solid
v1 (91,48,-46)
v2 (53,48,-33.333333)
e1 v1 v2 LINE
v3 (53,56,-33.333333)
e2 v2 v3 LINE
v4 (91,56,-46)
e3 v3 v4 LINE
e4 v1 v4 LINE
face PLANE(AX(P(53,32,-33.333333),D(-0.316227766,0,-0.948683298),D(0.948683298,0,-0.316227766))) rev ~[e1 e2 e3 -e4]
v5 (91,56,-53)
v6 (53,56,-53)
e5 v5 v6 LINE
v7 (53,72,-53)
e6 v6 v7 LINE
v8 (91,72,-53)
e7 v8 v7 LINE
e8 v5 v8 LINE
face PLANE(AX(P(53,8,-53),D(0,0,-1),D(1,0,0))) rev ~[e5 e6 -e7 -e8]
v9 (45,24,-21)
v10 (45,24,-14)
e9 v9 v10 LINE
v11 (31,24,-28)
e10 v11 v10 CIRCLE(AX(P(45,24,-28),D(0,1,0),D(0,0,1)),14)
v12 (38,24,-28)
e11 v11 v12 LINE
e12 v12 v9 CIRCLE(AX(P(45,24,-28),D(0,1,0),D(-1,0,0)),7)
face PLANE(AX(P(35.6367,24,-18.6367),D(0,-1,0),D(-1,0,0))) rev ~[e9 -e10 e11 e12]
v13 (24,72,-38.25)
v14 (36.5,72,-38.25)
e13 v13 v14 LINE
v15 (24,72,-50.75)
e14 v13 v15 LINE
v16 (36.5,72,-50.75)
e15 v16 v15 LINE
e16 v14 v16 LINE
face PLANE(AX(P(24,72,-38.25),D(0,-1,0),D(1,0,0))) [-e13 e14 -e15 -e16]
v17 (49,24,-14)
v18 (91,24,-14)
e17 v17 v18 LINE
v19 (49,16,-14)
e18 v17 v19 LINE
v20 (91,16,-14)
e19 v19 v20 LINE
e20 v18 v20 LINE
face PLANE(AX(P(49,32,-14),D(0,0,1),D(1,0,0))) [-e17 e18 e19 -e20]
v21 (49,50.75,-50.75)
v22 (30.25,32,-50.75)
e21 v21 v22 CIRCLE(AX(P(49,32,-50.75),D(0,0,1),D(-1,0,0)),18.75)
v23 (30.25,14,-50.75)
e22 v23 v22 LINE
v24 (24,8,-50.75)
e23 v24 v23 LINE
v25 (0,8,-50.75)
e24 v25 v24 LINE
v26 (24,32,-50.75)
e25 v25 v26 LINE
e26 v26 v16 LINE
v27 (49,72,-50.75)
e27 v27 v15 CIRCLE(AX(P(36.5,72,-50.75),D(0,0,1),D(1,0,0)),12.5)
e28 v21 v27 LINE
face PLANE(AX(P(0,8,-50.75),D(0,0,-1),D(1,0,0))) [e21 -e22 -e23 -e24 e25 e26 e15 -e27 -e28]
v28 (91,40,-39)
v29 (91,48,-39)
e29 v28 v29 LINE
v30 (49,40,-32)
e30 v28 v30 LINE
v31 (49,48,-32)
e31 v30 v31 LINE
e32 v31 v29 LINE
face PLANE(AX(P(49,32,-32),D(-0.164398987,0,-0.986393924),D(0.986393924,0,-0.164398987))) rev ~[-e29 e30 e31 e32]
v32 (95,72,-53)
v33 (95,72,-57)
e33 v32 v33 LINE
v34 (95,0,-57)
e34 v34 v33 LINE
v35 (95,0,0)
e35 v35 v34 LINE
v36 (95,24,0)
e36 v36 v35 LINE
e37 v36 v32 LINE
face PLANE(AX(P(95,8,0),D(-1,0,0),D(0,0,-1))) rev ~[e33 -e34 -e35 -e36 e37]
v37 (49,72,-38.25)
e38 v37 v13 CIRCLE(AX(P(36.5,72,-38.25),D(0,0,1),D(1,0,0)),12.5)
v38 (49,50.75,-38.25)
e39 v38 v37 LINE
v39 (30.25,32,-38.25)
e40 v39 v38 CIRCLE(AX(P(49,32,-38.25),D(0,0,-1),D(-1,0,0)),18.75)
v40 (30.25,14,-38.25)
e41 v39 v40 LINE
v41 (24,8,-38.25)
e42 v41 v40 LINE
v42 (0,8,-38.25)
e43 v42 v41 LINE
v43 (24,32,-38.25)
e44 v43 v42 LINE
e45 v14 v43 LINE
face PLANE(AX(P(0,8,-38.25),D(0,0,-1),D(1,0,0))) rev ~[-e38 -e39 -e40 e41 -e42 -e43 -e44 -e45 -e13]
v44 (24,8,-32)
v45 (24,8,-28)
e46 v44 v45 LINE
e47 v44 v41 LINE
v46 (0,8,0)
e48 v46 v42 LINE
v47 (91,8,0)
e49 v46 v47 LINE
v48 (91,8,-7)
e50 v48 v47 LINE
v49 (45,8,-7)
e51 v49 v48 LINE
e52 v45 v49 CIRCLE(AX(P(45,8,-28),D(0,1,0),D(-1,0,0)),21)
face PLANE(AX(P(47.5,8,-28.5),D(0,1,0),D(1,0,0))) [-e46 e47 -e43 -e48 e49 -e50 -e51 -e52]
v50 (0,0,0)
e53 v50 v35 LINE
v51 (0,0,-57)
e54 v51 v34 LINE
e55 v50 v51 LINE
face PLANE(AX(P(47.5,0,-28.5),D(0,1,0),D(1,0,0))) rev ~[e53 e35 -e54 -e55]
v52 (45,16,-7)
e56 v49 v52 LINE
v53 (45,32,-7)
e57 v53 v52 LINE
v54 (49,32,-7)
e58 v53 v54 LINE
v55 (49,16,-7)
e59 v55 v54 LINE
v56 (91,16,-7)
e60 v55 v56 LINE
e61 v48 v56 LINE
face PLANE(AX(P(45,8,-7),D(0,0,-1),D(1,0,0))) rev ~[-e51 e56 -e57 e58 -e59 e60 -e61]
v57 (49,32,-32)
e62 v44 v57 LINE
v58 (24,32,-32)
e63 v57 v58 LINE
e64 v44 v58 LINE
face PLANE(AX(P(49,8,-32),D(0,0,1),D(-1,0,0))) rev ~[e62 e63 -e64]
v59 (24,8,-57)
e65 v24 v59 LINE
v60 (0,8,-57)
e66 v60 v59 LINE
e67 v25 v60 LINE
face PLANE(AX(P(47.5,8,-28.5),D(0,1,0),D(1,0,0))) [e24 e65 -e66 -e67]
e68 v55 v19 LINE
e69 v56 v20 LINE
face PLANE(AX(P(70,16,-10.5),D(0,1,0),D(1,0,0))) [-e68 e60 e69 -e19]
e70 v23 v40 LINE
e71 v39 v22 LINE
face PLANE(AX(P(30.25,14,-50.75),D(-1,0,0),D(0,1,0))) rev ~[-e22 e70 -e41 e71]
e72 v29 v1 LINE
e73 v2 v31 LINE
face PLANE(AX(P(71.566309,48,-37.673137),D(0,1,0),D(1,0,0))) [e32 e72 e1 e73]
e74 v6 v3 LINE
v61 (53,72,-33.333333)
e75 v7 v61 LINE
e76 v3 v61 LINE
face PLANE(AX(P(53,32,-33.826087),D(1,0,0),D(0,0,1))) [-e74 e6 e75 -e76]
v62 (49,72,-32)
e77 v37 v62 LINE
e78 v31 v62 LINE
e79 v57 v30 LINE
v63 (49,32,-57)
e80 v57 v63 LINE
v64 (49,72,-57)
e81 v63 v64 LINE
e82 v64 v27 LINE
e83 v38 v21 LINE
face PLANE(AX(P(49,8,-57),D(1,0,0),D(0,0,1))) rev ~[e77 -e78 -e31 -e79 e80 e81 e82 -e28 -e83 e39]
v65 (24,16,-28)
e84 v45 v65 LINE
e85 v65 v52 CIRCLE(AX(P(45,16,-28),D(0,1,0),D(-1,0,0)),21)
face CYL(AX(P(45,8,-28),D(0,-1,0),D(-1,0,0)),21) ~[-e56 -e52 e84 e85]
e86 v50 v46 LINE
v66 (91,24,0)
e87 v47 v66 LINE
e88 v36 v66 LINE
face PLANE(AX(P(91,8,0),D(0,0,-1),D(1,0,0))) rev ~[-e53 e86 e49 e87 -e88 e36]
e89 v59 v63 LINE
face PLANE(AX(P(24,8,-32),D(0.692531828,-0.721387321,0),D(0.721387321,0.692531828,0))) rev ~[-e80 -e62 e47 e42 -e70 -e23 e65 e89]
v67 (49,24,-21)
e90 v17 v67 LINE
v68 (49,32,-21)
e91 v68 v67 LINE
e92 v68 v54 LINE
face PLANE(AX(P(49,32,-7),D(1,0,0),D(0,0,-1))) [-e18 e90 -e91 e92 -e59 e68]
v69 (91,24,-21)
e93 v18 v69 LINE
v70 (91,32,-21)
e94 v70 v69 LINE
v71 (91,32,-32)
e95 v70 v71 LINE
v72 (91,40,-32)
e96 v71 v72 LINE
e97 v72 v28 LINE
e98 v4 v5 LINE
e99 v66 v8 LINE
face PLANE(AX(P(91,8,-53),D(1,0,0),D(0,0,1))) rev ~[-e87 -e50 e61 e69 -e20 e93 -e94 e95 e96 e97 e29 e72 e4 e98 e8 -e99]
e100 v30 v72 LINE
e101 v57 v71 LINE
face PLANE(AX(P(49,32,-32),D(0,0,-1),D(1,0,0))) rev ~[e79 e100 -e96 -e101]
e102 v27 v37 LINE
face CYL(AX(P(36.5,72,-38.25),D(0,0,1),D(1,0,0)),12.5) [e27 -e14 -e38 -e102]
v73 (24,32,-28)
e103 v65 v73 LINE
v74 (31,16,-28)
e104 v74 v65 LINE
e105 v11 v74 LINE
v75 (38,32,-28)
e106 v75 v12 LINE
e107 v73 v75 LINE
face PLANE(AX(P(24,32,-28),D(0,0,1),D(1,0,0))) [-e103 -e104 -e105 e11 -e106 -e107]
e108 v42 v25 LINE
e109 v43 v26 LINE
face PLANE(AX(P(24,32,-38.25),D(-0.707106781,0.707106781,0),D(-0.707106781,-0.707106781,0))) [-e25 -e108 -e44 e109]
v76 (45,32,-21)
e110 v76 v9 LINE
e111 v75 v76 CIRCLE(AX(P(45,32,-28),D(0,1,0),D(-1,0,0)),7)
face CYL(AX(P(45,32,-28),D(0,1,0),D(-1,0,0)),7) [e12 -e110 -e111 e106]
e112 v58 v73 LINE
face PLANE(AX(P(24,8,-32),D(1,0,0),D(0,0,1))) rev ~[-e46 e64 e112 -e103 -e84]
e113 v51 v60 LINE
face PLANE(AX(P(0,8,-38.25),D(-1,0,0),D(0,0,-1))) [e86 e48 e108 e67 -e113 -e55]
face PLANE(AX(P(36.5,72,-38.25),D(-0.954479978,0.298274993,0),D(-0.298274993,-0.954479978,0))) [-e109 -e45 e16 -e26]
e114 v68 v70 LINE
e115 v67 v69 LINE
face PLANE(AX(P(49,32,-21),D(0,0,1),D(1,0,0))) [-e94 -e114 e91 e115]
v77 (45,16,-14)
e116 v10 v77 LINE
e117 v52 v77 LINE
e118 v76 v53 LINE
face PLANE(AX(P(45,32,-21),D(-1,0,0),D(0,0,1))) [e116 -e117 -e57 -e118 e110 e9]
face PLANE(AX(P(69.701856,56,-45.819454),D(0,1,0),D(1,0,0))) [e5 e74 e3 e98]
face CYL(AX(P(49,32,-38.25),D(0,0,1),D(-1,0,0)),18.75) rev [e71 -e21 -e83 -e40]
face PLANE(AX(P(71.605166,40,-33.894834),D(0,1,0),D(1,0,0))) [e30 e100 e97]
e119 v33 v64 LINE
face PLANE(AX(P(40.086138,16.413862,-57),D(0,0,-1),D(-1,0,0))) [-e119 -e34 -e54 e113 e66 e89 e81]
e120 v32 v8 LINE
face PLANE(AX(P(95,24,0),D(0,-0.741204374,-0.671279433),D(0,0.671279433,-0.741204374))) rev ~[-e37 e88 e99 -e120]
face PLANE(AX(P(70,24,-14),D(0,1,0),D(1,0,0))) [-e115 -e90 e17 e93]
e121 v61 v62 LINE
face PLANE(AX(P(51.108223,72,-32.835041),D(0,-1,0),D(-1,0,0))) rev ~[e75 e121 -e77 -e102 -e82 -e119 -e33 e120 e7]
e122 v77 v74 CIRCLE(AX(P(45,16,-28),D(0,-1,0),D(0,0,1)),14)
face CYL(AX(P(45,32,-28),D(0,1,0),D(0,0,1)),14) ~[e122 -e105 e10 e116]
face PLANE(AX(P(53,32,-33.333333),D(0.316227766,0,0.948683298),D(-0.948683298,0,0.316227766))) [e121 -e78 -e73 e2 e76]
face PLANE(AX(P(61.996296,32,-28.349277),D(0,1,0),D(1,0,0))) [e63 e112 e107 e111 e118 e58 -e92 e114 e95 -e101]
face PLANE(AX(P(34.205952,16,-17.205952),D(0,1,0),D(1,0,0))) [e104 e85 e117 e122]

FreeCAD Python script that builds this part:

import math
import FreeCAD as App
import Part
import Sketcher
Q = App.Units.Quantity


def add_polygon(sketch, points):
    """Adds a closed chain of lines whose ends are joined by coincident constraints."""
    first, n = sketch.GeometryCount, len(points)
    for a, b in zip(points, points[1:] + points[:1]):
        sketch.addGeometry(Part.LineSegment(App.Vector(*a, 0), App.Vector(*b, 0)), False)
    for i in range(n):
        sketch.addConstraint(Sketcher.Constraint("Coincident", first + i, 2, first + (i + 1) % n, 1))

doc = App.newDocument("Part")
body = doc.addObject("PartDesign::Body", "Body")

# Sketch on XZ plane
sketch1 = body.newObject("Sketcher::SketchObject", "Sketch")
sketch1.AttachmentSupport = (doc.getObject("XZ_Plane"), [""])
sketch1.MapMode = "FlatFace"
add_polygon(sketch1, [(0, -57), (0, 0), (95, 0), (95, -57)])  # lines 0-3
sketch1.addConstraint(Sketcher.Constraint("Vertical", 0))
sketch1.addConstraint(Sketcher.Constraint("Horizontal", 1))
sketch1.addConstraint(Sketcher.Constraint("Vertical", 2))
sketch1.addConstraint(Sketcher.Constraint("Horizontal", 3))
sketch1.addConstraint(Sketcher.Constraint("Coincident", 0, 2, -1, 1))
sketch1.addConstraint(Sketcher.Constraint("DistanceX", 1, 1, 1, 2, 95.0))
sketch1.addConstraint(Sketcher.Constraint("DistanceY", 0, 1, 0, 2, 57.0))
pad1 = body.newObject("PartDesign::Pad", "Pad")
pad1.Profile = sketch1
pad1.Length = 8
pad1.Reversed = True

# Sketch on XZ plane
sketch2 = body.newObject("Sketcher::SketchObject", "Sketch001")
sketch2.AttachmentSupport = (doc.getObject("XZ_Plane"), [""])
sketch2.MapMode = "FlatFace"
sketch2.AttachmentOffset = App.Placement(App.Vector(0, 0, -8), App.Rotation())
add_polygon(sketch2, [(95, 0), (95, -57), (49, -57), (49, -32), (53, -33.8), (53, -53), (91, -53), (91, 0)])  # lines 0-7
sketch2.addConstraint(Sketcher.Constraint("Vertical", 0))
sketch2.addConstraint(Sketcher.Constraint("Horizontal", 1))
sketch2.addConstraint(Sketcher.Constraint("Vertical", 2))
sketch2.addConstraint(Sketcher.Constraint("Vertical", 4))
sketch2.addConstraint(Sketcher.Constraint("Horizontal", 5))
sketch2.addConstraint(Sketcher.Constraint("Vertical", 6))
sketch2.addConstraint(Sketcher.Constraint("Horizontal", 7))
sketch2.addConstraint(Sketcher.Constraint("PointOnObject", 6, 2, -1))
sketch2.addConstraint(Sketcher.Constraint("DistanceX", 1, 2, 1, 1, 46.0))
sketch2.addConstraint(Sketcher.Constraint("DistanceX", 5, 1, 5, 2, 38.0))
sketch2.addConstraint(Sketcher.Constraint("DistanceX", 7, 1, 7, 2, 4.0))
sketch2.addConstraint(Sketcher.Constraint("DistanceY", 0, 2, 0, 1, 57.0))
sketch2.addConstraint(Sketcher.Constraint("DistanceY", 2, 1, 2, 2, 25.0))
sketch2.addConstraint(Sketcher.Constraint("DistanceY", 6, 1, 6, 2, 53.0))
sketch2.addConstraint(Sketcher.Constraint("DistanceX", -1, 1, 0, 2, 95.0))
sketch2.addConstraint(Sketcher.Constraint("Distance", 3, 4.397112))
pad2 = body.newObject("PartDesign::Pad", "Pad001")
pad2.Profile = sketch2
pad2.Length = 64
pad2.Reversed = True

# Sketch on XZ plane
sketch3 = body.newObject("Sketcher::SketchObject", "Sketch002")
sketch3.AttachmentSupport = (doc.getObject("XZ_Plane"), [""])
sketch3.MapMode = "FlatFace"
sketch3.AttachmentOffset = App.Placement(App.Vector(0, 0, -8), App.Rotation())
sketch3.addGeometry(Part.LineSegment(App.Vector(45, -7, 0), App.Vector(91, -7, 0)), False)
sketch3.addGeometry(Part.LineSegment(App.Vector(91, -7, 0), App.Vector(91, -53, 0)), False)
sketch3.addGeometry(Part.LineSegment(App.Vector(91, -53, 0), App.Vector(53, -53, 0)), False)
sketch3.addGeometry(Part.LineSegment(App.Vector(53, -53, 0), App.Vector(53, -33.8, 0)), False)
sketch3.addGeometry(Part.LineSegment(App.Vector(53, -33.8, 0), App.Vector(49, -32, 0)), False)
sketch3.addGeometry(Part.LineSegment(App.Vector(49, -32, 0), App.Vector(24, -32, 0)), False)
sketch3.addGeometry(Part.LineSegment(App.Vector(24, -32, 0), App.Vector(24, -28, 0)), False)
sketch3.addGeometry(Part.ArcOfCircle(Part.Circle(App.Vector(45, -28, 0), App.Vector(0, 0, 1), 21), math.radians(90), math.radians(180)), False)
sketch3.addConstraint(Sketcher.Constraint("Coincident", 0, 2, 1, 1))
sketch3.addConstraint(Sketcher.Constraint("Coincident", 1, 2, 2, 1))
sketch3.addConstraint(Sketcher.Constraint("Coincident", 2, 2, 3, 1))
sketch3.addConstraint(Sketcher.Constraint("Coincident", 3, 2, 4, 1))
sketch3.addConstraint(Sketcher.Constraint("Coincident", 4, 2, 5, 1))
sketch3.addConstraint(Sketcher.Constraint("Coincident", 5, 2, 6, 1))
sketch3.addConstraint(Sketcher.Constraint("Tangent", 6, 2, 7, 2))
sketch3.addConstraint(Sketcher.Constraint("Tangent", 7, 1, 0, 1))
sketch3.addConstraint(Sketcher.Constraint("Horizontal", 0))
sketch3.addConstraint(Sketcher.Constraint("Vertical", 1))
sketch3.addConstraint(Sketcher.Constraint("Horizontal", 2))
sketch3.addConstraint(Sketcher.Constraint("Vertical", 3))
sketch3.addConstraint(Sketcher.Constraint("Horizontal", 5))
sketch3.addConstraint(Sketcher.Constraint("Vertical", 6))
sketch3.addConstraint(Sketcher.Constraint("Equal", 0, 1))
sketch3.addConstraint(Sketcher.Constraint("Radius", 7, 21.0))
sketch3.addConstraint(Sketcher.Constraint("DistanceX", 0, 1, 0, 2, 46.0))
sketch3.addConstraint(Sketcher.Constraint("DistanceX", 2, 2, 2, 1, 38.0))
sketch3.addConstraint(Sketcher.Constraint("DistanceX", 5, 2, 5, 1, 25.0))
sketch3.addConstraint(Sketcher.Constraint("DistanceY", 6, 1, 6, 2, 4.0))
sketch3.addConstraint(Sketcher.Constraint("DistanceX", -1, 1, 7, 3, 45.0))
sketch3.addConstraint(Sketcher.Constraint("DistanceY", 7, 3, -1, 1, 28.0))
sketch3.addConstraint(Sketcher.Constraint("Distance", 4, 4.397112))
pad3 = body.newObject("PartDesign::Pad", "Pad002")
pad3.Profile = sketch3
pad3.Length = 24
pad3.Reversed = True

# Sketch on XZ plane
sketch4 = body.newObject("Sketcher::SketchObject", "Sketch003")
sketch4.AttachmentSupport = (doc.getObject("XZ_Plane"), [""])
sketch4.MapMode = "FlatFace"
sketch4.AttachmentOffset = App.Placement(App.Vector(0, 0, -32), App.Rotation())
sketch4.addGeometry(Part.ArcOfCircle(Part.Circle(App.Vector(45, -28, 0), App.Vector(0, 0, 1), 7), math.radians(90), math.radians(180)), False)  # 0
sketch4.addGeometry(Part.LineSegment(App.Vector(38, -28, 0), App.Vector(24, -28, 0)), False)  # 1
sketch4.addGeometry(Part.ArcOfCircle(Part.Circle(App.Vector(45, -28, 0), App.Vector(0, 0, 1), 21), math.radians(90), math.radians(180)), False)  # 2
sketch4.addGeometry(Part.LineSegment(App.Vector(45, -7, 0), App.Vector(45, -21, 0)), False)  # 3
add_polygon(sketch4, [(49, -21), (49, -7), (91, -7), (91, -21)])  # lines 4-7
sketch4.addConstraint(Sketcher.Constraint("Coincident", 0, 2, 1, 1))
sketch4.addConstraint(Sketcher.Constraint("Coincident", 1, 2, 2, 2))
sketch4.addConstraint(Sketcher.Constraint("Coincident", 2, 1, 3, 1))
sketch4.addConstraint(Sketcher.Constraint("Coincident", 3, 2, 0, 1))
sketch4.addConstraint(Sketcher.Constraint("Horizontal", 1))
sketch4.addConstraint(Sketcher.Constraint("Vertical", 3))
sketch4.addConstraint(Sketcher.Constraint("Vertical", 4))
sketch4.addConstraint(Sketcher.Constraint("Horizontal", 5))
sketch4.addConstraint(Sketcher.Constraint("Vertical", 6))
sketch4.addConstraint(Sketcher.Constraint("Horizontal", 7))
sketch4.addConstraint(Sketcher.Constraint("Coincident", 2, 3, 0, 3))
sketch4.addConstraint(Sketcher.Constraint("Horizontal", 2, 3, 0, 2))
sketch4.addConstraint(Sketcher.Constraint("Horizontal", 2, 1, 4, 2))
sketch4.addConstraint(Sketcher.Constraint("Horizontal", 3, 2, 6, 2))
sketch4.addConstraint(Sketcher.Constraint("Vertical", 0, 3, 2, 1))
sketch4.addConstraint(Sketcher.Constraint("Radius", 0, 7.0))
sketch4.addConstraint(Sketcher.Constraint("Radius", 2, 21.0))
sketch4.addConstraint(Sketcher.Constraint("DistanceX", 5, 1, 5, 2, 42.0))
sketch4.addConstraint(Sketcher.Constraint("DistanceX", -1, 1, 0, 3, 45.0))
sketch4.addConstraint(Sketcher.Constraint("DistanceY", 0, 3, -1, 1, 28.0))
sketch4.addConstraint(Sketcher.Constraint("DistanceX", -1, 1, 4, 2, 49.0))
pocket1 = body.newObject("PartDesign::Pocket", "Pocket")
pocket1.Profile = sketch4
pocket1.Length = 8
pocket1.Reversed = True

# Sketch on XZ plane
sketch5 = body.newObject("Sketcher::SketchObject", "Sketch004")
sketch5.AttachmentSupport = (doc.getObject("XZ_Plane"), [""])
sketch5.MapMode = "FlatFace"
sketch5.AttachmentOffset = App.Placement(App.Vector(0, 0, -32), App.Rotation())
sketch5.addGeometry(Part.ArcOfCircle(Part.Circle(App.Vector(45, -28, 0), App.Vector(0, 0, 1), 14), math.radians(90), math.radians(180)), False)  # 0
sketch5.addGeometry(Part.LineSegment(App.Vector(31, -28, 0), App.Vector(24, -28, 0)), False)  # 1
sketch5.addGeometry(Part.ArcOfCircle(Part.Circle(App.Vector(45, -28, 0), App.Vector(0, 0, 1), 21), math.radians(90), math.radians(180)), False)  # 2
sketch5.addGeometry(Part.LineSegment(App.Vector(45, -7, 0), App.Vector(45, -14, 0)), False)  # 3
add_polygon(sketch5, [(49, -14), (49, -7), (91, -7), (91, -14)])  # lines 4-7
sketch5.addConstraint(Sketcher.Constraint("Coincident", 0, 2, 1, 1))
sketch5.addConstraint(Sketcher.Constraint("Coincident", 1, 2, 2, 2))
sketch5.addConstraint(Sketcher.Constraint("Coincident", 2, 1, 3, 1))
sketch5.addConstraint(Sketcher.Constraint("Coincident", 3, 2, 0, 1))
sketch5.addConstraint(Sketcher.Constraint("Horizontal", 1))
sketch5.addConstraint(Sketcher.Constraint("Vertical", 3))
sketch5.addConstraint(Sketcher.Constraint("Vertical", 4))
sketch5.addConstraint(Sketcher.Constraint("Horizontal", 5))
sketch5.addConstraint(Sketcher.Constraint("Vertical", 6))
sketch5.addConstraint(Sketcher.Constraint("Horizontal", 7))
sketch5.addConstraint(Sketcher.Constraint("Coincident", 2, 3, 0, 3))
sketch5.addConstraint(Sketcher.Constraint("Horizontal", 2, 3, 0, 2))
sketch5.addConstraint(Sketcher.Constraint("Horizontal", 2, 1, 4, 2))
sketch5.addConstraint(Sketcher.Constraint("Horizontal", 3, 2, 6, 2))
sketch5.addConstraint(Sketcher.Constraint("Vertical", 0, 3, 2, 1))
sketch5.addConstraint(Sketcher.Constraint("Radius", 0, 14.0))
sketch5.addConstraint(Sketcher.Constraint("Radius", 2, 21.0))
sketch5.addConstraint(Sketcher.Constraint("DistanceX", 5, 1, 5, 2, 42.0))
sketch5.addConstraint(Sketcher.Constraint("DistanceX", -1, 1, 0, 3, 45.0))
sketch5.addConstraint(Sketcher.Constraint("DistanceY", 0, 3, -1, 1, 28.0))
sketch5.addConstraint(Sketcher.Constraint("DistanceX", -1, 1, 4, 2, 49.0))
pocket2 = body.newObject("PartDesign::Pocket", "Pocket001")
pocket2.Profile = sketch5
pocket2.Length = 16
pocket2.Reversed = True

# Sketch on YZ plane
sketch6 = body.newObject("Sketcher::SketchObject", "Sketch005")
sketch6.AttachmentSupport = (doc.getObject("YZ_Plane"), [""])
sketch6.MapMode = "FlatFace"
sketch6.AttachmentOffset = App.Placement(App.Vector(0, 0, 95), App.Rotation())
add_polygon(sketch6, [(72, 0), (24, 0), (72, -53)])  # lines 0-2
sketch6.addConstraint(Sketcher.Constraint("Horizontal", 0))
sketch6.addConstraint(Sketcher.Constraint("Vertical", 2))
sketch6.addConstraint(Sketcher.Constraint("PointOnObject", 0, 2, -1))
sketch6.addConstraint(Sketcher.Constraint("DistanceX", 0, 2, 0, 1, 48.0))
sketch6.addConstraint(Sketcher.Constraint("DistanceY", 2, 1, 2, 2, 53.0))
sketch6.addConstraint(Sketcher.Constraint("DistanceX", -1, 1, 0, 2, 24.0))
pocket3 = body.newObject("PartDesign::Pocket", "Pocket002")
pocket3.Profile = sketch6
pocket3.Length = 16
body2 = doc.addObject("PartDesign::Body", "Body001")

# Sketch on XZ plane
sketch7 = body2.newObject("Sketcher::SketchObject", "Sketch006")
sketch7.AttachmentSupport = (doc.getObject("XZ_Plane001"), [""])
sketch7.MapMode = "FlatFace"
sketch7.AttachmentOffset = App.Placement(App.Vector(0, 0, -32), App.Rotation())
add_polygon(sketch7, [(49, -32), (91, -32), (91, -39)])  # lines 0-2
sketch7.addConstraint(Sketcher.Constraint("Horizontal", 0))
sketch7.addConstraint(Sketcher.Constraint("Vertical", 1))
sketch7.addConstraint(Sketcher.Constraint("DistanceX", 0, 1, 0, 2, 42.0))
sketch7.addConstraint(Sketcher.Constraint("DistanceY", 1, 2, 1, 1, 7.0))
sketch7.addConstraint(Sketcher.Constraint("DistanceX", -1, 1, 0, 2, 91.0))
sketch7.addConstraint(Sketcher.Constraint("DistanceY", 0, 2, -1, 1, 32.0))
pad4 = body2.newObject("PartDesign::Pad", "Pad003")
pad4.Profile = sketch7
pad4.Length = 8
pad4.Reversed = True
body3 = doc.addObject("PartDesign::Body", "Body002")

# Sketch on XZ plane
sketch8 = body3.newObject("Sketcher::SketchObject", "Sketch007")
sketch8.AttachmentSupport = (doc.getObject("XZ_Plane002"), [""])
sketch8.MapMode = "FlatFace"
sketch8.AttachmentOffset = App.Placement(App.Vector(0, 0, -32), App.Rotation())
add_polygon(sketch8, [(91, -39), (91, -46), (49, -32)])  # lines 0-2
sketch8.addConstraint(Sketcher.Constraint("Vertical", 0))
sketch8.addConstraint(Sketcher.Constraint("DistanceY", 0, 2, 0, 1, 7.0))
sketch8.addConstraint(Sketcher.Constraint("DistanceX", -1, 1, 0, 2, 91.0))
sketch8.addConstraint(Sketcher.Constraint("DistanceY", 0, 2, -1, 1, 46.0))
sketch8.addConstraint(Sketcher.Constraint("DistanceX", -1, 1, 1, 2, 49.0))
sketch8.addConstraint(Sketcher.Constraint("DistanceY", 1, 2, -1, 1, 32.0))
pad5 = body3.newObject("PartDesign::Pad", "Pad004")
pad5.Profile = sketch8
pad5.Length = 16
pad5.Reversed = True
doc.recompute()

boolean = body.newObject("PartDesign::Boolean", "Boolean")
boolean.Type = "Fuse"
boolean.addObjects([body2])
doc.recompute()

boolean2 = body.newObject("PartDesign::Boolean", "Boolean001")
boolean2.Type = "Fuse"
boolean2.addObjects([body3])

# Sketch on XZ plane
sketch9 = body.newObject("Sketcher::SketchObject", "Sketch008")
sketch9.AttachmentSupport = (doc.getObject("XZ_Plane"), [""])
sketch9.MapMode = "FlatFace"
sketch9.AttachmentOffset = App.Placement(App.Vector(0, 0, -32), App.Rotation())
add_polygon(sketch9, [(53, -33.83), (49, -32), (53, -33.33)])  # lines 0-2
sketch9.addConstraint(Sketcher.Constraint("Vertical", 2))
sketch9.addConstraint(Sketcher.Constraint("DistanceX", -1, 1, 0, 2, 49.0))
sketch9.addConstraint(Sketcher.Constraint("DistanceY", 0, 2, -1, 1, 32.0))
sketch9.addConstraint(Sketcher.Constraint("DistanceX", -1, 1, 1, 2, 53.0))
sketch9.addConstraint(Sketcher.Constraint("Distance", 0, 4.397112))
sketch9.addConstraint(Sketcher.Constraint("Distance", 1, 4.21637))
pad6 = body.newObject("PartDesign::Pad", "Pad005")
pad6.Profile = sketch9
pad6.Length = 40
pad6.Reversed = True

# Sketch on XZ plane
sketch10 = body.newObject("Sketcher::SketchObject", "Sketch009")
sketch10.AttachmentSupport = (doc.getObject("XZ_Plane"), [""])
sketch10.MapMode = "FlatFace"
sketch10.AttachmentOffset = App.Placement(App.Vector(0, 0, -32), App.Rotation())
add_polygon(sketch10, [(53, -53), (53, -33), (91, -46), (91, -53)])  # lines 0-3
sketch10.addConstraint(Sketcher.Constraint("Vertical", 0))
sketch10.addConstraint(Sketcher.Constraint("Vertical", 2))
sketch10.addConstraint(Sketcher.Constraint("Horizontal", 3))
sketch10.addConstraint(Sketcher.Constraint("DistanceX", 3, 2, 3, 1, 38.0))
sketch10.addConstraint(Sketcher.Constraint("DistanceY", 2, 2, 2, 1, 7.0))
sketch10.addConstraint(Sketcher.Constraint("DistanceX", -1, 1, 0, 2, 53.0))
sketch10.addConstraint(Sketcher.Constraint("DistanceY", 1, 2, -1, 1, 46.0))
sketch10.addConstraint(Sketcher.Constraint("DistanceY", 0, 1, 0, 2, 19.666667))
pad7 = body.newObject("PartDesign::Pad", "Pad006")
pad7.Profile = sketch10
pad7.Length = 24
pad7.Reversed = True

# Sketch on XY plane
sketch11 = body.newObject("Sketcher::SketchObject", "Sketch010")
sketch11.AttachmentSupport = (doc.getObject("XY_Plane"), [""])
sketch11.MapMode = "FlatFace"
sketch11.AttachmentOffset = App.Placement(App.Vector(0, 0, -32), App.Rotation())
add_polygon(sketch11, [(49, 32), (49, 8), (24, 8)])  # lines 0-2
sketch11.addConstraint(Sketcher.Constraint("Vertical", 0))
sketch11.addConstraint(Sketcher.Constraint("Horizontal", 1))
sketch11.addConstraint(Sketcher.Constraint("DistanceX", 1, 2, 1, 1, 25.0))
sketch11.addConstraint(Sketcher.Constraint("DistanceY", 0, 2, 0, 1, 24.0))
sketch11.addConstraint(Sketcher.Constraint("DistanceX", -1, 1, 0, 2, 49.0))
sketch11.addConstraint(Sketcher.Constraint("DistanceY", -1, 1, 0, 2, 8.0))
pad8 = body.newObject("PartDesign::Pad", "Pad007")
pad8.Profile = sketch11
pad8.Length = 25
pad8.Reversed = True

# Sketch on XZ plane
sketch12 = body.newObject("Sketcher::SketchObject", "Sketch011")
sketch12.AttachmentSupport = (doc.getObject("XZ_Plane"), [""])
sketch12.MapMode = "FlatFace"
sketch12.AttachmentOffset = App.Placement(App.Vector(0, 0, -8), App.Rotation())
add_polygon(sketch12, [(0, -51), (0, -38), (49, -38), (49, -51)])  # lines 0-3
sketch12.addConstraint(Sketcher.Constraint("Vertical", 0))
sketch12.addConstraint(Sketcher.Constraint("Horizontal", 1))
sketch12.addConstraint(Sketcher.Constraint("Vertical", 2))
sketch12.addConstraint(Sketcher.Constraint("Horizontal", 3))
sketch12.addConstraint(Sketcher.Constraint("PointOnObject", 0, 2, -2))
sketch12.addConstraint(Sketcher.Constraint("DistanceX", 1, 1, 1, 2, 49.0))
sketch12.addConstraint(Sketcher.Constraint("DistanceY", 0, 1, 0, 2, 12.5))
sketch12.addConstraint(Sketcher.Constraint("DistanceY", 0, 2, -1, 1, 38.25))
pad9 = body.newObject("PartDesign::Pad", "Pad008")
pad9.Profile = sketch12
pad9.Length = 77.5
pad9.Reversed = True

# Sketch on XY plane
sketch13 = body.newObject("Sketcher::SketchObject", "Sketch012")
sketch13.AttachmentSupport = (doc.getObject("XY_Plane"), [""])
sketch13.MapMode = "FlatFace"
sketch13.AttachmentOffset = App.Placement(App.Vector(0, 0, -38.25), App.Rotation())
sketch13.addGeometry(Part.LineSegment(App.Vector(0, 8, 0), App.Vector(24, 32, 0)), False)
sketch13.addGeometry(Part.LineSegment(App.Vector(24, 32, 0), App.Vector(36, 72, 0)), False)
sketch13.addGeometry(Part.LineSegment(App.Vector(36, 72, 0), App.Vector(24, 72, 0)), False)
sketch13.addGeometry(Part.ArcOfCircle(Part.Circle(App.Vector(36, 72, 0), App.Vector(0, 0, 1), 12), math.radians(0), math.radians(180)), False)
sketch13.addGeometry(Part.LineSegment(App.Vector(49, 72, 0), App.Vector(49, 86, 0)), False)
sketch13.addGeometry(Part.LineSegment(App.Vector(49, 86, 0), App.Vector(0, 86, 0)), False)
sketch13.addGeometry(Part.LineSegment(App.Vector(0, 86, 0), App.Vector(0, 8, 0)), False)
sketch13.addGeometry(Part.LineSegment(App.Vector(49, 32, 0), App.Vector(49, 51, 0)), False)
sketch13.addGeometry(Part.ArcOfCircle(Part.Circle(App.Vector(49, 32, 0), App.Vector(0, 0, 1), 19), math.radians(90), math.radians(180)), False)
sketch13.addGeometry(Part.LineSegment(App.Vector(30, 32, 0), App.Vector(49, 32, 0)), False)
sketch13.addConstraint(Sketcher.Constraint("Coincident", 0, 2, 1, 1))
sketch13.addConstraint(Sketcher.Constraint("Coincident", 1, 2, 2, 1))
sketch13.addConstraint(Sketcher.Constraint("Coincident", 2, 2, 3, 2))
sketch13.addConstraint(Sketcher.Constraint("Tangent", 3, 1, 4, 1))
sketch13.addConstraint(Sketcher.Constraint("Coincident", 4, 2, 5, 1))
sketch13.addConstraint(Sketcher.Constraint("Coincident", 5, 2, 6, 1))
sketch13.addConstraint(Sketcher.Constraint("Coincident", 6, 2, 0, 1))
sketch13.addConstraint(Sketcher.Constraint("Coincident", 7, 2, 8, 1))
sketch13.addConstraint(Sketcher.Constraint("Coincident", 8, 2, 9, 1))
sketch13.addConstraint(Sketcher.Constraint("Coincident", 9, 2, 7, 1))
sketch13.addConstraint(Sketcher.Constraint("Horizontal", 2))
sketch13.addConstraint(Sketcher.Constraint("Vertical", 4))
sketch13.addConstraint(Sketcher.Constraint("Horizontal", 5))
sketch13.addConstraint(Sketcher.Constraint("Vertical", 6))
sketch13.addConstraint(Sketcher.Constraint("Vertical", 7))
sketch13.addConstraint(Sketcher.Constraint("Horizontal", 9))
sketch13.addConstraint(Sketcher.Constraint("Coincident", 1, 2, 3, 3))
sketch13.addConstraint(Sketcher.Constraint("Coincident", 9, 2, 8, 3))
sketch13.addConstraint(Sketcher.Constraint("PointOnObject", 5, 2, -2))
sketch13.addConstraint(Sketcher.Constraint("Horizontal", 8, 3, 0, 2))
sketch13.addConstraint(Sketcher.Constraint("Vertical", 0, 2, 2, 2))
sketch13.addConstraint(Sketcher.Constraint("Vertical", 8, 3, 3, 1))
sketch13.addConstraint(Sketcher.Constraint("Radius", 3, 12.5))
sketch13.addConstraint(Sketcher.Constraint("DistanceX", 5, 2, 5, 1, 49.0))
sketch13.addConstraint(Sketcher.Constraint("Angle", 0, Q("45 deg")))
sketch13.addConstraint(Sketcher.Constraint("Radius", 8, 18.75))
sketch13.addConstraint(Sketcher.Constraint("DistanceY", 4, 1, 4, 2, 13.5))
sketch13.addConstraint(Sketcher.Constraint("DistanceY", 6, 2, 6, 1, 77.5))
sketch13.addConstraint(Sketcher.Constraint("DistanceY", -1, 1, 3, 3, 72.0))
pocket4 = body.newObject("PartDesign::Pocket", "Pocket003")
pocket4.Profile = sketch13
pocket4.Type = "ThroughAll"

# Sketch on XY plane
sketch14 = body.newObject("Sketcher::SketchObject", "Sketch013")
sketch14.AttachmentSupport = (doc.getObject("XY_Plane"), [""])
sketch14.MapMode = "FlatFace"
sketch14.AttachmentOffset = App.Placement(App.Vector(0, 0, -50.75), App.Rotation())
add_polygon(sketch14, [(30, 32), (49, 32), (30, 14)])  # lines 0-2
sketch14.addConstraint(Sketcher.Constraint("Horizontal", 0))
sketch14.addConstraint(Sketcher.Constraint("Vertical", 2))
sketch14.addConstraint(Sketcher.Constraint("DistanceY", 2, 1, 2, 2, 18.0))
sketch14.addConstraint(Sketcher.Constraint("DistanceX", -1, 1, 0, 2, 49.0))
sketch14.addConstraint(Sketcher.Constraint("DistanceY", -1, 1, 0, 2, 32.0))
sketch14.addConstraint(Sketcher.Constraint("DistanceX", 0, 1, 0, 2, 18.75))
pocket5 = body.newObject("PartDesign::Pocket", "Pocket004")
pocket5.Profile = sketch14
pocket5.Type = "UpToFirst"
pocket5.Reversed = True

doc.recompute()
